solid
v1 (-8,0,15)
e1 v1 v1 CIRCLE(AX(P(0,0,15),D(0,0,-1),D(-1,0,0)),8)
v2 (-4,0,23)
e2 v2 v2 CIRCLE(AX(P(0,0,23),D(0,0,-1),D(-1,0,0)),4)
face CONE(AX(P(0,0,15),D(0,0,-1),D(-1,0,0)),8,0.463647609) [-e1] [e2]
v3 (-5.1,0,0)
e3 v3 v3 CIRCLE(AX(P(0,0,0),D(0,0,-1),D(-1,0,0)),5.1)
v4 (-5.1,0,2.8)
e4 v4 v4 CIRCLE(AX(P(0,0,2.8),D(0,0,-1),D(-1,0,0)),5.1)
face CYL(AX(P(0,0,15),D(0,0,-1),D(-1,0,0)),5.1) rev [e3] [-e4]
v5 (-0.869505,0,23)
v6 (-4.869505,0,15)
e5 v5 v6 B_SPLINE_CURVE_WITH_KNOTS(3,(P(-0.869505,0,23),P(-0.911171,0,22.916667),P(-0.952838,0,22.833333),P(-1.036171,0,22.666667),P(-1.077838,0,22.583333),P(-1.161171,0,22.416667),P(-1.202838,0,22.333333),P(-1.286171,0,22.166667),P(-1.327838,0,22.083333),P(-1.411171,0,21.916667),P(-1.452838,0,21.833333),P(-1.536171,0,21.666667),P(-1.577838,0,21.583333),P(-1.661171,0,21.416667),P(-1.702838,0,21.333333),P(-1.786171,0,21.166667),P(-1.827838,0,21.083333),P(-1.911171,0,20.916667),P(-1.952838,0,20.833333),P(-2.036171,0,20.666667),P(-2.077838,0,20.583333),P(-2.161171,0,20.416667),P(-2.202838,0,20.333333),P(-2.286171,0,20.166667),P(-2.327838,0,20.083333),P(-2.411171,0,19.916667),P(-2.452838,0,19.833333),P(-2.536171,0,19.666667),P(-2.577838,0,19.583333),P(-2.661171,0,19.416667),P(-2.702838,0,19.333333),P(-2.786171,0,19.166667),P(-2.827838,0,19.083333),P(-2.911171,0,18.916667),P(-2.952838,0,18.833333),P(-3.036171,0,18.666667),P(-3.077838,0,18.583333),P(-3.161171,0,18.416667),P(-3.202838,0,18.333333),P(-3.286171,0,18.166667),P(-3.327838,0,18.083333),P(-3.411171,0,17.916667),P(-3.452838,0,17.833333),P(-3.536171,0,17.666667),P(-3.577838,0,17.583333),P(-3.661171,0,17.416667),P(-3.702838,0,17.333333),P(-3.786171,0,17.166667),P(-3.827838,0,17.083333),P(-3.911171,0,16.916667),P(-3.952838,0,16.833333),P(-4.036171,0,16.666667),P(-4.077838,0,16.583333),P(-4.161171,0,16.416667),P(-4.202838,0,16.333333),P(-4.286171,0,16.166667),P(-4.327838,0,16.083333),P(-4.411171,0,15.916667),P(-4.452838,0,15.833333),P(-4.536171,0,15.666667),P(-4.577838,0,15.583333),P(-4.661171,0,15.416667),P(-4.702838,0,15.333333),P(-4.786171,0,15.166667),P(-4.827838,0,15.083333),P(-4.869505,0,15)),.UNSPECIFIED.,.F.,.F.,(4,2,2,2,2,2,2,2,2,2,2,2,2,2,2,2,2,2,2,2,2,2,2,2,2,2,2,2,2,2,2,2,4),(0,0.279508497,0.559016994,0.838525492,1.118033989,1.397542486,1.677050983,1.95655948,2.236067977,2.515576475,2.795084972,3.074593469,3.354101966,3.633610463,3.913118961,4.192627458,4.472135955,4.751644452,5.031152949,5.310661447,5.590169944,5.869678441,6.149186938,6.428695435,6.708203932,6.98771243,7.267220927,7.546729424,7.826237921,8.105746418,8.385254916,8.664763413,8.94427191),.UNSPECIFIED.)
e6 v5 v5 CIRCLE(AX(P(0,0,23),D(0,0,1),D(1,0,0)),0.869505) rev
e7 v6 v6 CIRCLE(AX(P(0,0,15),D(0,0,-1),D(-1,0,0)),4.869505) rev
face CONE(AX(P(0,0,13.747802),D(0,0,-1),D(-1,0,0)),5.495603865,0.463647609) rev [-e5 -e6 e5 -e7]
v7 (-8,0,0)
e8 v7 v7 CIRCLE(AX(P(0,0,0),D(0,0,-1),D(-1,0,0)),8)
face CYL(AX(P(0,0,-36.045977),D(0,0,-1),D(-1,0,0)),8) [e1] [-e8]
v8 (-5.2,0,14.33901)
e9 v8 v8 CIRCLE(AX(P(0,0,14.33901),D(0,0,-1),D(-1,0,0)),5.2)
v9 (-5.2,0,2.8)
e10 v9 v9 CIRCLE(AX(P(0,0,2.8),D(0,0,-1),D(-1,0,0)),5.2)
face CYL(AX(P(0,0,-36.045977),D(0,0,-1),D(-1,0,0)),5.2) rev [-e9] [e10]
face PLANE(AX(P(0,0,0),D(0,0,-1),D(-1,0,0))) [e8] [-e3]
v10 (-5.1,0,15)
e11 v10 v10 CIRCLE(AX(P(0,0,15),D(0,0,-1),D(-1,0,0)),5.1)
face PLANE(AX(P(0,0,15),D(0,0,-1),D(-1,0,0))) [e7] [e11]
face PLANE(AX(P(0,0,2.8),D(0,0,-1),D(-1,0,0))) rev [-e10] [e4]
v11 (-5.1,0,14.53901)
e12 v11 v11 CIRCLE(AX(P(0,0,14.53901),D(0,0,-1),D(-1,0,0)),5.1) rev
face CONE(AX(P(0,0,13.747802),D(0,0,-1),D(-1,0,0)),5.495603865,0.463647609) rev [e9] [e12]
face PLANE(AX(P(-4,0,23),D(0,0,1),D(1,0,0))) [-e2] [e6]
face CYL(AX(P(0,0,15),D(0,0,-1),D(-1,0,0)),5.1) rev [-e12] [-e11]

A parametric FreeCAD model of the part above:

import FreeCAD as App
import Part
import Sketcher

V = App.Vector


def faces_at(feature, points):
    """Names of the faces that lie closest to the given points."""
    faces = feature.Shape.Faces
    near = lambda p: min(range(len(faces)), key=lambda i: faces[i].distToShape(Part.Vertex(*p))[0])
    return sorted({f"Face{near(p) + 1}" for p in points})

doc = App.newDocument("Part")
params = doc.addObject("Spreadsheet::Sheet", "Params")
for row, (alias, value) in enumerate([
    ("sketch1_width", "8 mm"),
    ("sketch1_width2", "4 mm"),
    ("sketch1_height", "15 mm"),
    ("sketch1_height2", "23 mm"),
    ("revolution_angle", "360 deg"),
    ("thickness_wall", "2.8 mm"),
    ("sketch2_diameter", "10.2 mm"),
    ("pocket1_length", "15 mm"),
], start=1):
    params.set(f"A{row}", alias)
    params.set(f"B{row}", "=" + value)
    params.setAlias(f"B{row}", alias)

body = doc.addObject("PartDesign::Body", "Body")

sketch1 = body.newObject("Sketcher::SketchObject", "Sketch")
sketch1.AttachmentSupport = (doc.getObject("XZ_Plane"), [""])
sketch1.MapMode = "FlatFace"
sketch1.addGeometry([
    Part.LineSegment(V(0, 0, 0), V(-8, 0, 0)),
    Part.LineSegment(V(-8, 0, 0), V(-8, 15, 0)),
    Part.LineSegment(V(-8, 15, 0), V(-4, 23, 0)),
    Part.LineSegment(V(-4, 23, 0), V(0, 23, 0)),
    Part.LineSegment(V(0, 23, 0), V(0, 0, 0)),
], False)
sketch1.addConstraint([
    Sketcher.Constraint("Coincident", 0, 2, 1, 1),
    Sketcher.Constraint("Coincident", 1, 2, 2, 1),
    Sketcher.Constraint("Coincident", 2, 2, 3, 1),
    Sketcher.Constraint("Coincident", 3, 2, 4, 1),
    Sketcher.Constraint("Coincident", 4, 2, 0, 1),
    Sketcher.Constraint("Horizontal", 0),
    Sketcher.Constraint("Vertical", 1),
    Sketcher.Constraint("Horizontal", 3),
    Sketcher.Constraint("Vertical", 4),
    Sketcher.Constraint("Coincident", 4, 2, -1, 1),
    Sketcher.Constraint("DistanceX", 0, 2, 0, 1, 8.0),
    Sketcher.Constraint("DistanceX", 3, 1, 3, 2, 4.0),
    Sketcher.Constraint("DistanceY", 1, 1, 1, 2, 15.0),
    Sketcher.Constraint("DistanceY", 4, 2, 4, 1, 23.0),
])
sketch1.setExpression("Constraints[10]", "Params.sketch1_width")
sketch1.setExpression("Constraints[11]", "Params.sketch1_width2")
sketch1.setExpression("Constraints[12]", "Params.sketch1_height")
sketch1.setExpression("Constraints[13]", "Params.sketch1_height2")
revolution = body.newObject("PartDesign::Revolution", "Revolution")
revolution.Profile = sketch1
revolution.ReferenceAxis = (sketch1, ["V_Axis"])
revolution.setExpression("Angle", "Params.revolution_angle")
doc.recompute()

thickness = body.newObject("PartDesign::Thickness", "Thickness")
thickness.Base = (revolution, faces_at(revolution, [(0, 0, 23)]))
thickness.setExpression("Value", "Params.thickness_wall")
thickness.Reversed = True
thickness.Join = "Intersection"

sketch2 = body.newObject("Sketcher::SketchObject", "Sketch001")
sketch2.AttachmentSupport = (doc.getObject("XY_Plane"), [""])
sketch2.MapMode = "FlatFace"
sketch2.addGeometry(Part.Circle(V(0, 0, 0), V(0, 0, 1), 5), False)
sketch2.addConstraint([
    Sketcher.Constraint("Coincident", 0, 3, -1, 1),
    Sketcher.Constraint("Diameter", 0, 10.2),
])
sketch2.setExpression("Constraints[1]", "Params.sketch2_diameter")
pocket1 = body.newObject("PartDesign::Pocket", "Pocket")
pocket1.Profile = sketch2
pocket1.setExpression("Length", "Params.pocket1_length")
pocket1.Reversed = True

doc.recompute()
